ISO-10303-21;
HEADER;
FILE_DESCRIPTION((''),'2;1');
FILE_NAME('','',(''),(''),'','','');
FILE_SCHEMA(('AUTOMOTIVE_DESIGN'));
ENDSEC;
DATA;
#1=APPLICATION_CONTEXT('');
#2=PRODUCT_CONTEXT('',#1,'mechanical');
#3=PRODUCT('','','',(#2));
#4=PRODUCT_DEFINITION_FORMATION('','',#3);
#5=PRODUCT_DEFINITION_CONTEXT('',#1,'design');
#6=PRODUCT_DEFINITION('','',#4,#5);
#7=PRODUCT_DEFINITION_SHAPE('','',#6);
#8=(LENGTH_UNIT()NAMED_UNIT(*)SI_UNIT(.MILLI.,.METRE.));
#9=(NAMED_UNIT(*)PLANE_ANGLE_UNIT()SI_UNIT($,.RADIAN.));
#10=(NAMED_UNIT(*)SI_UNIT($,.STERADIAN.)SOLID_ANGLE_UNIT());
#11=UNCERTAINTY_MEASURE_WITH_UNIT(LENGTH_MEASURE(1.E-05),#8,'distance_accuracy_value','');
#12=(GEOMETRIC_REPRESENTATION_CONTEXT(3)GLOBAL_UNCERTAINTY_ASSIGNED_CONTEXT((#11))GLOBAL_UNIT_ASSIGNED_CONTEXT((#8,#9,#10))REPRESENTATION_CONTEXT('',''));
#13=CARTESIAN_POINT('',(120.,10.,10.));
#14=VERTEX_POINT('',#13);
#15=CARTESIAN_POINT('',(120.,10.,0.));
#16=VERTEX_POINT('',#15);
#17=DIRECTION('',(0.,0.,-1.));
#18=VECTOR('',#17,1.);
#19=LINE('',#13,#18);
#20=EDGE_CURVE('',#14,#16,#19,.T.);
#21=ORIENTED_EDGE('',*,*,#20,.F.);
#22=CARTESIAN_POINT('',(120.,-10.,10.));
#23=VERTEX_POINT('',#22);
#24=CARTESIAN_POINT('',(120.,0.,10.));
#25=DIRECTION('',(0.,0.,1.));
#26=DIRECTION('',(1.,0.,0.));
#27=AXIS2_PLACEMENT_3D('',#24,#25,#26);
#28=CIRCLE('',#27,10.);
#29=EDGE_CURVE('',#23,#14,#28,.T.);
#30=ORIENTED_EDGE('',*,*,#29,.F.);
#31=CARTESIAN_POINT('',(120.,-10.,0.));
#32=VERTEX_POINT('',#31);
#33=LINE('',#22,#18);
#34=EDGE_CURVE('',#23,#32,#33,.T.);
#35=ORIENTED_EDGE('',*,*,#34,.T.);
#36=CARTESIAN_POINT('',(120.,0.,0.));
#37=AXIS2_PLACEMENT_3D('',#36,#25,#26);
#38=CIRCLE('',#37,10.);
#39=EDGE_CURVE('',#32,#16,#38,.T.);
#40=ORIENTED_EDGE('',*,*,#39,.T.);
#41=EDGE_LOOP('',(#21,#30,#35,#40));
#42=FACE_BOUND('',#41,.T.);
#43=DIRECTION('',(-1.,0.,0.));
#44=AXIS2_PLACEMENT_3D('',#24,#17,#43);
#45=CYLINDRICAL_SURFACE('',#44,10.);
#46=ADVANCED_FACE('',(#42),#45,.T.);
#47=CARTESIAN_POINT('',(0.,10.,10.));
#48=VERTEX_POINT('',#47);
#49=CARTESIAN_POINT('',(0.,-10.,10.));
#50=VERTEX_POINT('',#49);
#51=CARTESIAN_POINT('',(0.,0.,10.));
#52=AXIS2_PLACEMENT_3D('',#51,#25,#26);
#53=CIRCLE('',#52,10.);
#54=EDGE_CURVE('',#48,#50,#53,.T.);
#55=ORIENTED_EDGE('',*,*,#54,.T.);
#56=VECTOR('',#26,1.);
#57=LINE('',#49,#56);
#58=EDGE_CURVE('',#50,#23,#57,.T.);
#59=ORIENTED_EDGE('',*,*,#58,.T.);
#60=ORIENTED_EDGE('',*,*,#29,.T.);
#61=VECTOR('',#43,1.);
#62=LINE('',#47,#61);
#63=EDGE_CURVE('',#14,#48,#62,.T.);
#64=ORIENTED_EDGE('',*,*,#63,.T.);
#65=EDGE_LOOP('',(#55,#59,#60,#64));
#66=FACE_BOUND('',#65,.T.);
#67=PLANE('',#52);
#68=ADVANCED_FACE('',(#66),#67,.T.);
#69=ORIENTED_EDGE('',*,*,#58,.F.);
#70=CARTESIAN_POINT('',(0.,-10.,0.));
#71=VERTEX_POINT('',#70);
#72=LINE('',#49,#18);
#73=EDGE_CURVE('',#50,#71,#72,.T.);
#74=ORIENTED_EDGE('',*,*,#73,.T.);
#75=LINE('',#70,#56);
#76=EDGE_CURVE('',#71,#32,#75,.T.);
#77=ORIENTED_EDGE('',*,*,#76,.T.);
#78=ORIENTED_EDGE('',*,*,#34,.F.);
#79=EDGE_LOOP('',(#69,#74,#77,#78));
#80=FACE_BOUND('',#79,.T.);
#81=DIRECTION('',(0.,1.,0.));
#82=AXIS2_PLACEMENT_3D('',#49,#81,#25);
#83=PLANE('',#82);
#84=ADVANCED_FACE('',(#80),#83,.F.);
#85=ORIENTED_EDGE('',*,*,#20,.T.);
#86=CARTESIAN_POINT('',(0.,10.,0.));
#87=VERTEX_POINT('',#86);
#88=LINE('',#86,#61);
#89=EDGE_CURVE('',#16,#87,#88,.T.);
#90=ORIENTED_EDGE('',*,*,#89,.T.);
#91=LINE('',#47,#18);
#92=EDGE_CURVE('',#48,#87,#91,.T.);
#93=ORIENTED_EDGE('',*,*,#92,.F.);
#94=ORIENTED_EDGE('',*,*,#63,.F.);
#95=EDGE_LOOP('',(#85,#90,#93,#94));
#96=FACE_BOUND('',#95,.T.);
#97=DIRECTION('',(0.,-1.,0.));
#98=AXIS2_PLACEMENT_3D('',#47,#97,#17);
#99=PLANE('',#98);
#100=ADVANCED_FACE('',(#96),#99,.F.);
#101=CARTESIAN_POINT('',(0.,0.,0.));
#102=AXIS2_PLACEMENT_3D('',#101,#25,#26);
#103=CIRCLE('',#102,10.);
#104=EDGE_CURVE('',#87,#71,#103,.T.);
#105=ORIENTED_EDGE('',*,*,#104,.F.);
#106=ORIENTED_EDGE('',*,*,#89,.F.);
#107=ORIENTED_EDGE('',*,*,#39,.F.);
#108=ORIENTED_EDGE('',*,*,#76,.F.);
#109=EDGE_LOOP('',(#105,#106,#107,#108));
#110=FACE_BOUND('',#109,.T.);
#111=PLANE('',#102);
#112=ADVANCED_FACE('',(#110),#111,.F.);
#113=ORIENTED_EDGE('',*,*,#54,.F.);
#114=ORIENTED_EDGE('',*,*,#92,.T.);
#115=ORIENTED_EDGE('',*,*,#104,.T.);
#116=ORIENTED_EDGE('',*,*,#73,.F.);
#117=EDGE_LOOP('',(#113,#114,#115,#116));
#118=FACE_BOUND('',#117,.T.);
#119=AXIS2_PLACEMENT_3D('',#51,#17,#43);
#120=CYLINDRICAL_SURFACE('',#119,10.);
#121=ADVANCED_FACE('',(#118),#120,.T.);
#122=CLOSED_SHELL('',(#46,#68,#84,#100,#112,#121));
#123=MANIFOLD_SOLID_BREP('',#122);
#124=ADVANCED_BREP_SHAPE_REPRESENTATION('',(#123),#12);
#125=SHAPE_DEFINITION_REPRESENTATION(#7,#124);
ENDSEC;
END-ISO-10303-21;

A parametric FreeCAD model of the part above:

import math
import FreeCAD as App
import Part
import Sketcher
Q = App.Units.Quantity

doc = App.newDocument("Part")
body = doc.addObject("PartDesign::Body", "Body")

# Sketch on XY plane
sketch1 = body.newObject("Sketcher::SketchObject", "Sketch")
sketch1.AttachmentSupport = (doc.getObject("XY_Plane"), [""])
sketch1.MapMode = "FlatFace"
sketch1.addGeometry(Part.LineSegment(App.Vector(120, 10, 0), App.Vector(0, 10, 0)), False)
sketch1.addGeometry(Part.ArcOfCircle(Part.Circle(App.Vector(0, 0, 0), App.Vector(0, 0, 1), 10), math.radians(90), math.radians(270)), False)
sketch1.addGeometry(Part.LineSegment(App.Vector(0, -10, 0), App.Vector(120, -10, 0)), False)
sketch1.addGeometry(Part.ArcOfCircle(Part.Circle(App.Vector(120, 0, 0), App.Vector(0, 0, 1), 10), math.radians(-90), math.radians(90)), False)
sketch1.addConstraint(Sketcher.Constraint("Tangent", 0, 2, 1, 1))
sketch1.addConstraint(Sketcher.Constraint("Tangent", 1, 2, 2, 1))
sketch1.addConstraint(Sketcher.Constraint("Tangent", 2, 2, 3, 1))
sketch1.addConstraint(Sketcher.Constraint("Tangent", 3, 2, 0, 1))
sketch1.addConstraint(Sketcher.Constraint("Horizontal", 0))
sketch1.addConstraint(Sketcher.Constraint("Horizontal", 2))
sketch1.addConstraint(Sketcher.Constraint("Coincident", 1, 3, -1, 1))
sketch1.addConstraint(Sketcher.Constraint("Radius", 1, Q("10 mm")))
sketch1.addConstraint(Sketcher.Constraint("DistanceX", 0, 2, 0, 1, Q("120 mm")))
pad1 = body.newObject("PartDesign::Pad", "Pad")
pad1.Profile = sketch1
pad1.Length = 10

doc.recompute()
